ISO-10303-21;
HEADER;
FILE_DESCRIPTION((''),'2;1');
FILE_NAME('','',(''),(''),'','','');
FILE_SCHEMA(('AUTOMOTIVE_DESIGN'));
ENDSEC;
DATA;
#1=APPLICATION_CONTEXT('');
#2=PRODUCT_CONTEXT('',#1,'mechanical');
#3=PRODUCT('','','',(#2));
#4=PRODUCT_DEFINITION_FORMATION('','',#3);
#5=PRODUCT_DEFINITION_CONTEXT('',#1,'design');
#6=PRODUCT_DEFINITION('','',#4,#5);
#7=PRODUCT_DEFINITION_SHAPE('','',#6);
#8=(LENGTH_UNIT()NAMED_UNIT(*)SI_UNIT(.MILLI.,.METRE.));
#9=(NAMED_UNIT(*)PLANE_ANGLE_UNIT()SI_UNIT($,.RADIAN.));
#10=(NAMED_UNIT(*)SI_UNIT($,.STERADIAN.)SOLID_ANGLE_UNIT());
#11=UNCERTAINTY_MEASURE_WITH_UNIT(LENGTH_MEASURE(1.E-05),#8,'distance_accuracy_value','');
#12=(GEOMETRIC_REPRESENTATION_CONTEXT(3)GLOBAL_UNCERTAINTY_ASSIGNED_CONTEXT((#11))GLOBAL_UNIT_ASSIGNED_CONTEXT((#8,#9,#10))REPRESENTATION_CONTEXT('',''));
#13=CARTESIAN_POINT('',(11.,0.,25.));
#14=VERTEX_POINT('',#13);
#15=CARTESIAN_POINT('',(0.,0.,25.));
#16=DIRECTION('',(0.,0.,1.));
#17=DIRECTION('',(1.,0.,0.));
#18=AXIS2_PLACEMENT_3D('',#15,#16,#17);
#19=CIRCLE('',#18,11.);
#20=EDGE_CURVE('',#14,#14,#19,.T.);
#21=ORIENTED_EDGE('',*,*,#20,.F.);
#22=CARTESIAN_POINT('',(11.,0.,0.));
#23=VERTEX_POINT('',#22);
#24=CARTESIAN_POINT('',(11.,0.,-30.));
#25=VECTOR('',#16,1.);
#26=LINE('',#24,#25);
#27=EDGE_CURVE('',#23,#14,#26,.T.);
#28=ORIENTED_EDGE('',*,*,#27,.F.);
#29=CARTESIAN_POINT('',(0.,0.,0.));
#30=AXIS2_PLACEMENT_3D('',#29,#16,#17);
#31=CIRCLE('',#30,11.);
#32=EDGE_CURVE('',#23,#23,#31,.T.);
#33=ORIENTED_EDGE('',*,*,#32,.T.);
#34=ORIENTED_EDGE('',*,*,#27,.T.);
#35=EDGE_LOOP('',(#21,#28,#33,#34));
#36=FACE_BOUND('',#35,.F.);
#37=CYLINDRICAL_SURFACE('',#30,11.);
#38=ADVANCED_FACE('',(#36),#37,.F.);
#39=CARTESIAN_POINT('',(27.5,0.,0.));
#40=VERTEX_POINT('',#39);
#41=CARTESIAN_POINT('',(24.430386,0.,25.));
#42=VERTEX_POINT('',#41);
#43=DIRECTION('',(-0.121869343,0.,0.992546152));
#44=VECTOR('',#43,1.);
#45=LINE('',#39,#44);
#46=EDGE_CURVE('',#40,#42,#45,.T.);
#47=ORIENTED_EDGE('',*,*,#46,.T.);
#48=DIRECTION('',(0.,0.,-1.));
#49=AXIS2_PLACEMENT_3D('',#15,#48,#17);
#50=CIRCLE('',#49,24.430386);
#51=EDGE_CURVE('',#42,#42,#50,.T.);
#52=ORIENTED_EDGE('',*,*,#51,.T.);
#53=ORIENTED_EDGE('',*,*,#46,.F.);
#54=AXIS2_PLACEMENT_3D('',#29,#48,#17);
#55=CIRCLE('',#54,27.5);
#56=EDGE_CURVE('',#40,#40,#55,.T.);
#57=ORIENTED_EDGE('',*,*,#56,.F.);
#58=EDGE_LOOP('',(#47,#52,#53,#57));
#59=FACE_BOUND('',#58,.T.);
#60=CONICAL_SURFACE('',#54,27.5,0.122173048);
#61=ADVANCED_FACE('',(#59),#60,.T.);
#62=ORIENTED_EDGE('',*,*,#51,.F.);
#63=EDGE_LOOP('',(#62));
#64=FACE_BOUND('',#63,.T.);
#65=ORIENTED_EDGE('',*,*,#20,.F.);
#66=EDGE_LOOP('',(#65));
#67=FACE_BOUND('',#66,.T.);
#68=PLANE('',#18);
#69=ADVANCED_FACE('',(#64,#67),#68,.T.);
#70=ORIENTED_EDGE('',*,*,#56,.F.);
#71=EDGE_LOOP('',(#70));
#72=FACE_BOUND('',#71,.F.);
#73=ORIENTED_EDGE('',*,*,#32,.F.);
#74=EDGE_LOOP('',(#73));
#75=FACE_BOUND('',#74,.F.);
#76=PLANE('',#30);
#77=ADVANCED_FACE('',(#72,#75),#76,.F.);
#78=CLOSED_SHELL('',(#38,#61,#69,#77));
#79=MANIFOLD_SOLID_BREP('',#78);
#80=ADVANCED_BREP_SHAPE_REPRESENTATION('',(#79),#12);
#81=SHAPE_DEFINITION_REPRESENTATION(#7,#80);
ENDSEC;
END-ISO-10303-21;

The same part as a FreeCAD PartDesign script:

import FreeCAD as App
import Part
import Sketcher
from FreeCAD import Vector
Q = App.Units.Quantity

doc = App.newDocument("Part")
params = doc.addObject("Spreadsheet::Sheet", "Params")
for row, (alias, value) in enumerate([
    ("sketch1_diameter", "55 mm"),
    ("pad1_length", "25 mm"),
    ("pad1_taper", "-7 deg"),
    ("sketch2_diameter", "22 mm"),
    ("pocket1_length", "60 mm"),
], start=1):
    params.set(f"A{row}", alias)
    params.set(f"B{row}", "=" + value)
    params.setAlias(f"B{row}", alias)

body = doc.addObject("PartDesign::Body", "Body")

# Sketch on XY plane
sketch1 = body.newObject("Sketcher::SketchObject", "Sketch")
sketch1.AttachmentSupport = (doc.getObject("XY_Plane"), [""])
sketch1.MapMode = "FlatFace"
sketch1.addGeometry(Part.Circle(Vector(0, 0, 0), Vector(0, 0, 1), 27.5), False)
sketch1.addConstraint([
    Sketcher.Constraint("Coincident", 0, 3, -1, 1),
    Sketcher.Constraint("Diameter", 0, Q("55 mm")),
])
sketch1.setExpression("Constraints[1]", "Params.sketch1_diameter")
pad1 = body.newObject("PartDesign::Pad", "Pad")
pad1.Profile = sketch1
pad1.setExpression("Length", "Params.pad1_length")
pad1.setExpression("TaperAngle", "Params.pad1_taper")

# Sketch on XY plane
sketch2 = body.newObject("Sketcher::SketchObject", "Sketch001")
sketch2.AttachmentSupport = (doc.getObject("XY_Plane"), [""])
sketch2.MapMode = "FlatFace"
sketch2.addGeometry(Part.Circle(Vector(0, 0, 0), Vector(0, 0, 1), 11), False)
sketch2.addConstraint([
    Sketcher.Constraint("Coincident", 0, 3, -1, 1),
    Sketcher.Constraint("Diameter", 0, Q("22 mm")),
])
sketch2.setExpression("Constraints[1]", "Params.sketch2_diameter")
pocket1 = body.newObject("PartDesign::Pocket", "Pocket")
pocket1.Profile = sketch2
pocket1.setExpression("Length", "Params.pocket1_length")
pocket1.Midplane = True

doc.recompute()
